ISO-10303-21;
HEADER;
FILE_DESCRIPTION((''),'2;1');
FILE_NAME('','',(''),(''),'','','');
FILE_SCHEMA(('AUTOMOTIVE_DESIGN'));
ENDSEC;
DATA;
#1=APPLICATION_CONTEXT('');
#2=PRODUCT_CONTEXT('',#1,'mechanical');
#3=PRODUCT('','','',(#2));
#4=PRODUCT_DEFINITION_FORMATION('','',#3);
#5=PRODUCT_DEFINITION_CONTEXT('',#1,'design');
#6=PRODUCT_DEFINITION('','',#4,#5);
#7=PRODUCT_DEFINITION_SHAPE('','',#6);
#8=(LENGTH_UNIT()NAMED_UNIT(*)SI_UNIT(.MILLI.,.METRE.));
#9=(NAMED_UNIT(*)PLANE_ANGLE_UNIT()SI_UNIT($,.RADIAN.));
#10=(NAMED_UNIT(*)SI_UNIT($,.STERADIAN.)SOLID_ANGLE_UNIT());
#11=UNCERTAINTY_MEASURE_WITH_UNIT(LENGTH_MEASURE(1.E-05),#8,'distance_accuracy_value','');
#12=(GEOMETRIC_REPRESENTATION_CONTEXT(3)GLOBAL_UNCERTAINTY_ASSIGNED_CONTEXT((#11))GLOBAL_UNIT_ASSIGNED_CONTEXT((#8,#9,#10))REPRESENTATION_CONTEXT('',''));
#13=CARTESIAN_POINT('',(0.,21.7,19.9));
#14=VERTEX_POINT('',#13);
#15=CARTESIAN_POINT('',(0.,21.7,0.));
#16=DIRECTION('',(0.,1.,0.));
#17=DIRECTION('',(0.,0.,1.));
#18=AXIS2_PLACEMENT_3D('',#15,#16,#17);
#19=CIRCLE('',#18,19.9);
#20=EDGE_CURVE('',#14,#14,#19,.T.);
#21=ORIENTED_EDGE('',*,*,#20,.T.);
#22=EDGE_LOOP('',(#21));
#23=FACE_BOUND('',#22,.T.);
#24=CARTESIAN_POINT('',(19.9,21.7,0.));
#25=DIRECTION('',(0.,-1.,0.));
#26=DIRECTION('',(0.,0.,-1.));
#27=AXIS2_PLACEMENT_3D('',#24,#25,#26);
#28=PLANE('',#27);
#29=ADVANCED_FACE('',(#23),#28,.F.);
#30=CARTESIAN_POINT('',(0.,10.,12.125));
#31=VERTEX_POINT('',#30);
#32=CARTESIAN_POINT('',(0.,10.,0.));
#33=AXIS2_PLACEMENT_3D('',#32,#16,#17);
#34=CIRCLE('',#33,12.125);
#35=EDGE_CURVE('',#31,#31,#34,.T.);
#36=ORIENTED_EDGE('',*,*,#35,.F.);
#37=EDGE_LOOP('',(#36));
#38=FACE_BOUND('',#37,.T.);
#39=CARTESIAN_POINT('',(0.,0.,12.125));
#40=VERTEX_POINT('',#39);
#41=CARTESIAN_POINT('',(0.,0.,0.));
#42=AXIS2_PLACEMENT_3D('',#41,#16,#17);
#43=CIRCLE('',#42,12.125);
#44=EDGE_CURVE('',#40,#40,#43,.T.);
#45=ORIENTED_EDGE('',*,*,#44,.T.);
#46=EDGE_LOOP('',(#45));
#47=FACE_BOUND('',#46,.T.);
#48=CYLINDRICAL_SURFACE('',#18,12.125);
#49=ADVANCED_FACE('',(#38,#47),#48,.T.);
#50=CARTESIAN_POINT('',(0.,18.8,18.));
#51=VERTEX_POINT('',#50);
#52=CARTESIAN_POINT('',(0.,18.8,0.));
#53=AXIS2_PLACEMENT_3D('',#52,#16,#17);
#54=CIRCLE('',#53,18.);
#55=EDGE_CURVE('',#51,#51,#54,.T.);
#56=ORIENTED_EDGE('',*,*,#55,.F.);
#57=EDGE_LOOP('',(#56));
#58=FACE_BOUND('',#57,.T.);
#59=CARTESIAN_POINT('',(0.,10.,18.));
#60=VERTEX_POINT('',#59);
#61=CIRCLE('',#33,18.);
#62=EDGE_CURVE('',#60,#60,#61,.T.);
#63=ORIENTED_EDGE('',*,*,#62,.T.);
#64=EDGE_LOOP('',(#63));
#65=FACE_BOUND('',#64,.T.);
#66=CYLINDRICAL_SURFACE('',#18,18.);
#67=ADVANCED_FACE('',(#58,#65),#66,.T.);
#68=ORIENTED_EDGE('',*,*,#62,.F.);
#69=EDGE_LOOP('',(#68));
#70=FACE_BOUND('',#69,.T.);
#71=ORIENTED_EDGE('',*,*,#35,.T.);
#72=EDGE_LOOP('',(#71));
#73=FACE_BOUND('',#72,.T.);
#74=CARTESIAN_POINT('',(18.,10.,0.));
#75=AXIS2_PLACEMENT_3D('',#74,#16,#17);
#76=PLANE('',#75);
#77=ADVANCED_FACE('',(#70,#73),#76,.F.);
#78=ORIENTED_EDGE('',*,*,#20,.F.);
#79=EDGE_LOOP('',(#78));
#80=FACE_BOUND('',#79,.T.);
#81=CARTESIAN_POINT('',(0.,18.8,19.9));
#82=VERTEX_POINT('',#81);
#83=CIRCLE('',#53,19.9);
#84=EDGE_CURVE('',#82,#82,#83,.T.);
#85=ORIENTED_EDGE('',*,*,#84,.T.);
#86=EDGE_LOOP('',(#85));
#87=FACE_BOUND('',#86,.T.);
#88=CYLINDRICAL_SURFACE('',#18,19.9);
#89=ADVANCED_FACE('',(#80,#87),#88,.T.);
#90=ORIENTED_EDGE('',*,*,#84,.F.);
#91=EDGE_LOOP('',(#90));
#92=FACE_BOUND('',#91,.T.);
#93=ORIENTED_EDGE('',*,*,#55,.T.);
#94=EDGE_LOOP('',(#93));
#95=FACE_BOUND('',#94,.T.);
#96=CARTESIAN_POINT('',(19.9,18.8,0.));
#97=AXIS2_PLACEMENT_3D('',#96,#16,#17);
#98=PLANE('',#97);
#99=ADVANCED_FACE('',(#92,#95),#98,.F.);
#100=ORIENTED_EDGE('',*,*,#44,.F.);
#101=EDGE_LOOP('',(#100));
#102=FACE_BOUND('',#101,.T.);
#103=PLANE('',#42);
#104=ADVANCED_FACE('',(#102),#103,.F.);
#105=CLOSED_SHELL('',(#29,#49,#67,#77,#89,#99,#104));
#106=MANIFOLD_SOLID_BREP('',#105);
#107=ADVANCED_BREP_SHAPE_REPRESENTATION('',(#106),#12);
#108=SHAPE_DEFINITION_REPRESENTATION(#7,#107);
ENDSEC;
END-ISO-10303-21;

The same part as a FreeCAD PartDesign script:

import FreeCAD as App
import Part
import Sketcher
from FreeCAD import Vector


def add_polygon(sketch, points):
    """Adds a closed chain of lines whose ends are joined by coincident constraints."""
    first, n = sketch.GeometryCount, len(points)
    for a, b in zip(points, points[1:] + points[:1]):
        sketch.addGeometry(Part.LineSegment(App.Vector(*a, 0), App.Vector(*b, 0)), False)
    for i in range(n):
        sketch.addConstraint(Sketcher.Constraint("Coincident", first + i, 2, first + (i + 1) % n, 1))

doc = App.newDocument("Part")
body = doc.addObject("PartDesign::Body", "Body")

sketch1 = doc.addObject("Sketcher::SketchObject", "Sketch")
body.addObject(sketch1)
sketch1.AttachmentSupport = (doc.XY_Plane, [""])
sketch1.MapMode = "FlatFace"
add_polygon(sketch1, [(0, 0), (12.125, 0), (12.125, 10), (18, 10), (18, 18.8), (19.9, 18.8), (19.9, 21.7), (0, 21.7)])
sketch1.addConstraint(Sketcher.Constraint("Horizontal", 0))
sketch1.addConstraint(Sketcher.Constraint("Vertical", 1))
sketch1.addConstraint(Sketcher.Constraint("Horizontal", 2))
sketch1.addConstraint(Sketcher.Constraint("Vertical", 3))
sketch1.addConstraint(Sketcher.Constraint("Horizontal", 4))
sketch1.addConstraint(Sketcher.Constraint("Vertical", 5))
sketch1.addConstraint(Sketcher.Constraint("Horizontal", 6))
sketch1.addConstraint(Sketcher.Constraint("Vertical", 7))
sketch1.addConstraint(Sketcher.Constraint("Coincident", 7, 2, -1, 1))
sketch1.addConstraint(Sketcher.Constraint("DistanceY", 1, 1, 1, 2, 10.0))
sketch1.addConstraint(Sketcher.Constraint("DistanceX", 4, 1, 4, 2, 1.9))
sketch1.addConstraint(Sketcher.Constraint("DistanceX", 6, 2, 6, 1, 19.9))
sketch1.addConstraint(Sketcher.Constraint("DistanceY", 3, 1, 3, 2, 8.8))
sketch1.addConstraint(Sketcher.Constraint("DistanceY", 5, 1, 5, 2, 2.9))
sketch1.addConstraint(Sketcher.Constraint("DistanceX", 0, 1, 0, 2, 12.125))
revolution = doc.addObject("PartDesign::Revolution", "Revolution")
body.addObject(revolution)
revolution.Profile = sketch1
revolution.ReferenceAxis = (sketch1, ["V_Axis"])
revolution.Angle = 360

doc.recompute()
